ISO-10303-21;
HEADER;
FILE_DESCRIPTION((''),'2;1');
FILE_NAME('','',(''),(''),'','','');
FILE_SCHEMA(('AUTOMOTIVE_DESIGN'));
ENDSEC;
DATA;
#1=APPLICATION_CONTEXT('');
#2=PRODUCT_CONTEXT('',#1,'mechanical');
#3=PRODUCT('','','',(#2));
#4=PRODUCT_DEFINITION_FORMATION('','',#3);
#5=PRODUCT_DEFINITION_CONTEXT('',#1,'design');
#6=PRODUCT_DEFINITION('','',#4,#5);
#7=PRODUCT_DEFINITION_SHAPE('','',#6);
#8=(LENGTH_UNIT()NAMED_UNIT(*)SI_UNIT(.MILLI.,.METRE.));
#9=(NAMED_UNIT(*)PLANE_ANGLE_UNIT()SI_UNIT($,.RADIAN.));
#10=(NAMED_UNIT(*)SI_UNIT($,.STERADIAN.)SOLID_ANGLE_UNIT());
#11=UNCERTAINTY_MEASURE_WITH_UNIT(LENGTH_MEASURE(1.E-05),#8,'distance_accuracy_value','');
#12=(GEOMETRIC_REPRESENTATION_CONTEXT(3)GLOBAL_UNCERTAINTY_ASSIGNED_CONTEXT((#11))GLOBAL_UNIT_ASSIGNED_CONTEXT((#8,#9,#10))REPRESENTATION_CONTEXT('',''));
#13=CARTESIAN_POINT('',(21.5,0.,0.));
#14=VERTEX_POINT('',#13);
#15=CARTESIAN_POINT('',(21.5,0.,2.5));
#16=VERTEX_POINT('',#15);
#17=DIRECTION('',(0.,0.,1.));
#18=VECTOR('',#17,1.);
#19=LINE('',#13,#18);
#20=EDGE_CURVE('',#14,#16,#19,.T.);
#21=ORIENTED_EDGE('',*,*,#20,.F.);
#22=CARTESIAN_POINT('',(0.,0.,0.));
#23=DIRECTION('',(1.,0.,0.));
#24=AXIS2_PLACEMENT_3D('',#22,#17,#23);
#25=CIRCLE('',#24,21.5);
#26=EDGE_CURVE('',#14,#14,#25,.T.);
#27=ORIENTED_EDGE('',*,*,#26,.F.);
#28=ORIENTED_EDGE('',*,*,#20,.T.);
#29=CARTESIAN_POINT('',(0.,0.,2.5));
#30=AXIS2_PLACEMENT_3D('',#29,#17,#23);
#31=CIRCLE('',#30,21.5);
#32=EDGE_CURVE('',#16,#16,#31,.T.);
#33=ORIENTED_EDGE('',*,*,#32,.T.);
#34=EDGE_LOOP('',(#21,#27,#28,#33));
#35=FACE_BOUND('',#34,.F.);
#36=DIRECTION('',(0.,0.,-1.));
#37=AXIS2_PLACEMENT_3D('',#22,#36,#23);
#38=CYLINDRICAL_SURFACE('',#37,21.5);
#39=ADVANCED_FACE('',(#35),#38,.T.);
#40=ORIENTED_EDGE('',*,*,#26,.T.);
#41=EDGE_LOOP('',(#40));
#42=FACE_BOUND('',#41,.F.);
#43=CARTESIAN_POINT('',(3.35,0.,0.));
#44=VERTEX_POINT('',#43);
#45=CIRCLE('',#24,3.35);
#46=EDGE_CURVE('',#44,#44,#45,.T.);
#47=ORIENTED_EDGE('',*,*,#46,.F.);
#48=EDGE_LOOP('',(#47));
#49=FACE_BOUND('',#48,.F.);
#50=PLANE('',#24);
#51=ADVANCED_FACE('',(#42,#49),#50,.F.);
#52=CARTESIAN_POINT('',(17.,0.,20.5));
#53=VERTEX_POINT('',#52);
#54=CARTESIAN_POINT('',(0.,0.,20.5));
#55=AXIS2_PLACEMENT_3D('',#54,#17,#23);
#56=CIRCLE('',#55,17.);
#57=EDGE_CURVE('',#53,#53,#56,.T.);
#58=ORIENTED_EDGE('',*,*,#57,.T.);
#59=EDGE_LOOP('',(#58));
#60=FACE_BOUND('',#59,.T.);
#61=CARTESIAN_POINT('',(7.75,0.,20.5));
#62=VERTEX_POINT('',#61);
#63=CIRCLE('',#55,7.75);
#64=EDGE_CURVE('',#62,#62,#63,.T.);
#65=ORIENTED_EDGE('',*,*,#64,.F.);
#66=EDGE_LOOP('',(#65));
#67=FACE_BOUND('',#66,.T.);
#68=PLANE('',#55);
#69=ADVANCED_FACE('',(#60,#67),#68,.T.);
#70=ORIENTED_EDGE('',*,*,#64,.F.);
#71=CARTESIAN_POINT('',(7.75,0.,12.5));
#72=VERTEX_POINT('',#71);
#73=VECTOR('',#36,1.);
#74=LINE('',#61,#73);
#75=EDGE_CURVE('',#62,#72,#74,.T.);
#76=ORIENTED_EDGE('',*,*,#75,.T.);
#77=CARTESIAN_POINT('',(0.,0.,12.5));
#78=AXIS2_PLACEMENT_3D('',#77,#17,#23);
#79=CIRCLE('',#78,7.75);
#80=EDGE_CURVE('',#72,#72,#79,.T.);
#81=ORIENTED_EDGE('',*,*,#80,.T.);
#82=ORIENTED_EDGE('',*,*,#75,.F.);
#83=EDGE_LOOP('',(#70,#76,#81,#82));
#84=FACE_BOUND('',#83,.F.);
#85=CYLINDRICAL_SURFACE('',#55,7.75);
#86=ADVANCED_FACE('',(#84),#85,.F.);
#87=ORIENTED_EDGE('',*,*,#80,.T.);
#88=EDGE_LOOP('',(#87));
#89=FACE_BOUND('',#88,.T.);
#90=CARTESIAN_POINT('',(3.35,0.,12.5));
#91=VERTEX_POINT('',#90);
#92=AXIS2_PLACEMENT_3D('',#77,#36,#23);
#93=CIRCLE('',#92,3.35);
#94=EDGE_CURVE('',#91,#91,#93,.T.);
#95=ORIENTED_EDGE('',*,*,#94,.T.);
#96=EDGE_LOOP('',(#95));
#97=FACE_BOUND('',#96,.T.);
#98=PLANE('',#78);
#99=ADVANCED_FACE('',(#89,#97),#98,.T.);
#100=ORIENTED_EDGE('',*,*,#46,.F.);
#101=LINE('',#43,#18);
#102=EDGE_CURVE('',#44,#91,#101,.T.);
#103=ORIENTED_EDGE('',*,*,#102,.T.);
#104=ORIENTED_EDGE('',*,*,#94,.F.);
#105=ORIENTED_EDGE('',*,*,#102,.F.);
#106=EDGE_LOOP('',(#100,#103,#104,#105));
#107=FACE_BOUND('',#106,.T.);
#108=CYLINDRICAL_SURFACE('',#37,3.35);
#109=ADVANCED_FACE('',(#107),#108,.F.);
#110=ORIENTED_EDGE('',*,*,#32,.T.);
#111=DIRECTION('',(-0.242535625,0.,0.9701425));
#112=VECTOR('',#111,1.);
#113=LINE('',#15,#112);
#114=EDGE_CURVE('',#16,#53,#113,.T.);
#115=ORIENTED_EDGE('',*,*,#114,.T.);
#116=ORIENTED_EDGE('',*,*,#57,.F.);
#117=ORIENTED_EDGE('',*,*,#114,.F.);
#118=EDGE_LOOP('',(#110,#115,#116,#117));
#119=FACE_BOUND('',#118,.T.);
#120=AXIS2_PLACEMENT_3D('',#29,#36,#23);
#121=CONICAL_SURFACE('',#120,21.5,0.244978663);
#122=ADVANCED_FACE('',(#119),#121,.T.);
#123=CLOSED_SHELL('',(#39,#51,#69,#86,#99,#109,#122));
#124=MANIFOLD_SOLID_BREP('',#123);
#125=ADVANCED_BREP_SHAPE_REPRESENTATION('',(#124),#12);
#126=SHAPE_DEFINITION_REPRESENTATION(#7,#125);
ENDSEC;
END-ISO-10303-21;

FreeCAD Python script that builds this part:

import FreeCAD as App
import Part
import Sketcher
from FreeCAD import Vector
Q = App.Units.Quantity


def edges_at(feature, points):
    """Names of the edges that pass closest to the given points."""
    edges = feature.Shape.Edges
    near = lambda p: min(range(len(edges)), key=lambda i: edges[i].distToShape(Part.Vertex(*p))[0])
    return sorted({f"Edge{near(p) + 1}" for p in points})

doc = App.newDocument("Part")
body = doc.addObject("PartDesign::Body", "Body")

# Sketch on XY plane
sketch1 = doc.addObject("Sketcher::SketchObject", "Sketch")
body.addObject(sketch1)
sketch1.AttachmentSupport = (doc.XY_Plane, [""])
sketch1.MapMode = "FlatFace"
sketch1.addGeometry([
    Part.Circle(Vector(0, 0, 0), Vector(0, 0, 1), 21.5),
    Part.Circle(Vector(0, 0, 0), Vector(0, 0, 1), 3.4),
], False)
sketch1.addConstraint([
    Sketcher.Constraint("Coincident", 0, 3, -1, 1),
    Sketcher.Constraint("Coincident", 1, 3, -1, 1),
    Sketcher.Constraint("Diameter", 0, Q("43 mm")),
    Sketcher.Constraint("Diameter", 1, Q("6.7 mm")),
])
pad1 = doc.addObject("PartDesign::Pad", "Pad")
body.addObject(pad1)
pad1.Profile = sketch1
pad1.Length = 20.5
doc.recompute()

chamfer = doc.addObject("PartDesign::Chamfer", "Chamfer")
body.addObject(chamfer)
chamfer.Base = (pad1, edges_at(pad1, [(-21.5, 0, 20.5)]))
chamfer.ChamferType = "Two distances"
chamfer.Size = 18
chamfer.Size2 = 4.5

# Sketch on XY plane
sketch2 = doc.addObject("Sketcher::SketchObject", "Sketch001")
body.addObject(sketch2)
sketch2.AttachmentSupport = (doc.XY_Plane, [""])
sketch2.MapMode = "FlatFace"
sketch2.AttachmentOffset = App.Placement(Vector(0, 0, 20.5), App.Rotation())
sketch2.addGeometry(Part.Circle(Vector(0, 0, 0), Vector(0, 0, 1), 8), False)
sketch2.addConstraint([
    Sketcher.Constraint("Coincident", 0, 3, -1, 1),
    Sketcher.Constraint("Diameter", 0, Q("15.5 mm")),
])
pocket1 = doc.addObject("PartDesign::Pocket", "Pocket")
body.addObject(pocket1)
pocket1.Profile = sketch2
pocket1.Length = 8

doc.recompute()
